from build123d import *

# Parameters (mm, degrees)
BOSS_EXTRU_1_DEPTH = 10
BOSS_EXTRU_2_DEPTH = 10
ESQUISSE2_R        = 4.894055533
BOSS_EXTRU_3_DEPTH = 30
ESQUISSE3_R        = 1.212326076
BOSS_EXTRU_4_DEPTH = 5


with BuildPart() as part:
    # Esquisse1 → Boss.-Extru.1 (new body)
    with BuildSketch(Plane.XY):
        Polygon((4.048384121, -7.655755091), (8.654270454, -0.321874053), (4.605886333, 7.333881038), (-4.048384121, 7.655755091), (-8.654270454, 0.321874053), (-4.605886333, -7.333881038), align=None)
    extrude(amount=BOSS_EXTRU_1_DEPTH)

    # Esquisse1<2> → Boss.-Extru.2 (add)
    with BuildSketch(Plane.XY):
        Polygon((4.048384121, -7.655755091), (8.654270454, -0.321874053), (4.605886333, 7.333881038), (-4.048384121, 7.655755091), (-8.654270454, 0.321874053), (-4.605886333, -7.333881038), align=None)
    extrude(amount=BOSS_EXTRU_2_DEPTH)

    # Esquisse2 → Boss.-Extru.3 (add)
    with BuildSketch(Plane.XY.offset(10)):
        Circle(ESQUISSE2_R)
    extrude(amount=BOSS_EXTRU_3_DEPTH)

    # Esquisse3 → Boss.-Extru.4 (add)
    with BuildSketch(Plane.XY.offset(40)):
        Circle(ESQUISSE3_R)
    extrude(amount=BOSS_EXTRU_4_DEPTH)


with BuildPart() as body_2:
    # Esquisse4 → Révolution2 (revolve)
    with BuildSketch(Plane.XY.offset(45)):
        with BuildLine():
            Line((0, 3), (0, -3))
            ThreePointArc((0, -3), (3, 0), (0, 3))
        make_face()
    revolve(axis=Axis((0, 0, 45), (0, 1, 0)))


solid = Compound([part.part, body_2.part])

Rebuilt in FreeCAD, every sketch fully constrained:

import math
import FreeCAD as App
import Part
import Sketcher
from FreeCAD import Vector
Q = App.Units.Quantity

doc = App.newDocument("Part")
body = doc.addObject("PartDesign::Body", "Body")

sketch1 = body.newObject("Sketcher::SketchObject", "Sketch")
sketch1.AttachmentSupport = (doc.getObject("XY_Plane"), [""])
sketch1.MapMode = "FlatFace"
sketch1.addGeometry(Part.LineSegment(Vector(4.048384, -7.655755, 0), Vector(8.65427, -0.321874, 0)), False)
sketch1.addGeometry(Part.LineSegment(Vector(8.65427, -0.321874, 0), Vector(4.605886, 7.333881, 0)), False)
sketch1.addGeometry(Part.LineSegment(Vector(4.605886, 7.333881, 0), Vector(-4.048384, 7.655755, 0)), False)
sketch1.addGeometry(Part.LineSegment(Vector(-4.048384, 7.655755, 0), Vector(-8.65427, 0.321874, 0)), False)
sketch1.addGeometry(Part.LineSegment(Vector(-8.65427, 0.321874, 0), Vector(-4.605886, -7.333881, 0)), False)
sketch1.addGeometry(Part.LineSegment(Vector(-4.605886, -7.333881, 0), Vector(4.048384, -7.655755, 0)), False)
sketch1.addConstraint(Sketcher.Constraint("Coincident", 0, 2, 1, 1))
sketch1.addConstraint(Sketcher.Constraint("Coincident", 1, 2, 2, 1))
sketch1.addConstraint(Sketcher.Constraint("Coincident", 2, 2, 3, 1))
sketch1.addConstraint(Sketcher.Constraint("Coincident", 3, 2, 4, 1))
sketch1.addConstraint(Sketcher.Constraint("Coincident", 4, 2, 5, 1))
sketch1.addConstraint(Sketcher.Constraint("Coincident", 5, 2, 0, 1))
sketch1.addConstraint(Sketcher.Constraint("Symmetric", 0, 2, 3, 2, -1, 1))
sketch1.addConstraint(Sketcher.Constraint("Symmetric", 1, 2, 4, 2, -1, 1))
sketch1.addConstraint(Sketcher.Constraint("Symmetric", 2, 2, 5, 2, -1, 1))
sketch1.addConstraint(Sketcher.Constraint("Equal", 0, 1))
sketch1.addConstraint(Sketcher.Constraint("Equal", 1, 2))
sketch1.addConstraint(Sketcher.Constraint("Angle", 0, Q("57.870008 deg")))
sketch1.addConstraint(Sketcher.Constraint("Angle", 1, Q("117.870008 deg")))
sketch1.addConstraint(Sketcher.Constraint("Angle", 2, Q("177.870008 deg")))
sketch1.addConstraint(Sketcher.Constraint("DistanceX", -1, 1, 0, 2, Q("8.65427 mm")))
pad1 = body.newObject("PartDesign::Pad", "Pad")
pad1.Profile = sketch1
pad1.Length = 10

sketch2 = body.newObject("Sketcher::SketchObject", "Sketch001")
sketch2.AttachmentSupport = (doc.getObject("XY_Plane"), [""])
sketch2.MapMode = "FlatFace"
sketch2.addGeometry(Part.LineSegment(Vector(4.048384, -7.655755, 0), Vector(8.65427, -0.321874, 0)), False)
sketch2.addGeometry(Part.LineSegment(Vector(8.65427, -0.321874, 0), Vector(4.605886, 7.333881, 0)), False)
sketch2.addGeometry(Part.LineSegment(Vector(4.605886, 7.333881, 0), Vector(-4.048384, 7.655755, 0)), False)
sketch2.addGeometry(Part.LineSegment(Vector(-4.048384, 7.655755, 0), Vector(-8.65427, 0.321874, 0)), False)
sketch2.addGeometry(Part.LineSegment(Vector(-8.65427, 0.321874, 0), Vector(-4.605886, -7.333881, 0)), False)
sketch2.addGeometry(Part.LineSegment(Vector(-4.605886, -7.333881, 0), Vector(4.048384, -7.655755, 0)), False)
sketch2.addConstraint(Sketcher.Constraint("Coincident", 0, 2, 1, 1))
sketch2.addConstraint(Sketcher.Constraint("Coincident", 1, 2, 2, 1))
sketch2.addConstraint(Sketcher.Constraint("Coincident", 2, 2, 3, 1))
sketch2.addConstraint(Sketcher.Constraint("Coincident", 3, 2, 4, 1))
sketch2.addConstraint(Sketcher.Constraint("Coincident", 4, 2, 5, 1))
sketch2.addConstraint(Sketcher.Constraint("Coincident", 5, 2, 0, 1))
sketch2.addConstraint(Sketcher.Constraint("Symmetric", 0, 2, 3, 2, -1, 1))
sketch2.addConstraint(Sketcher.Constraint("Symmetric", 1, 2, 4, 2, -1, 1))
sketch2.addConstraint(Sketcher.Constraint("Symmetric", 2, 2, 5, 2, -1, 1))
sketch2.addConstraint(Sketcher.Constraint("Equal", 0, 1))
sketch2.addConstraint(Sketcher.Constraint("Equal", 1, 2))
sketch2.addConstraint(Sketcher.Constraint("Angle", 0, Q("57.870008 deg")))
sketch2.addConstraint(Sketcher.Constraint("Angle", 1, Q("117.870008 deg")))
sketch2.addConstraint(Sketcher.Constraint("Angle", 2, Q("177.870008 deg")))
sketch2.addConstraint(Sketcher.Constraint("DistanceX", -1, 1, 0, 2, Q("8.65427 mm")))
pad2 = body.newObject("PartDesign::Pad", "Pad001")
pad2.Profile = sketch2
pad2.Length = 10

sketch3 = body.newObject("Sketcher::SketchObject", "Sketch002")
sketch3.AttachmentSupport = (doc.getObject("XY_Plane"), [""])
sketch3.MapMode = "FlatFace"
sketch3.AttachmentOffset = App.Placement(Vector(0, 0, 10), App.Rotation())
sketch3.addGeometry(Part.Circle(Vector(0, 0, 0), Vector(0, 0, 1), 4.894056), False)
sketch3.addConstraint(Sketcher.Constraint("Coincident", 0, 3, -1, 1))
sketch3.addConstraint(Sketcher.Constraint("Diameter", 0, Q("9.788111 mm")))
pad3 = body.newObject("PartDesign::Pad", "Pad002")
pad3.Profile = sketch3
pad3.Length = 30

sketch4 = body.newObject("Sketcher::SketchObject", "Sketch003")
sketch4.AttachmentSupport = (doc.getObject("XY_Plane"), [""])
sketch4.MapMode = "FlatFace"
sketch4.AttachmentOffset = App.Placement(Vector(0, 0, 40), App.Rotation())
sketch4.addGeometry(Part.Circle(Vector(0, 0, 0), Vector(0, 0, 1), 1.212326), False)
sketch4.addConstraint(Sketcher.Constraint("Coincident", 0, 3, -1, 1))
sketch4.addConstraint(Sketcher.Constraint("Diameter", 0, Q("2.424652 mm")))
pad4 = body.newObject("PartDesign::Pad", "Pad003")
pad4.Profile = sketch4
pad4.Length = 5
body2 = doc.addObject("PartDesign::Body", "Body001")

sketch5 = body2.newObject("Sketcher::SketchObject", "Sketch004")
sketch5.AttachmentSupport = (doc.getObject("XY_Plane001"), [""])
sketch5.MapMode = "FlatFace"
sketch5.AttachmentOffset = App.Placement(Vector(0, 0, 45), App.Rotation())
sketch5.addGeometry(Part.LineSegment(Vector(0, 3, 0), Vector(0, -3, 0)), False)
sketch5.addGeometry(Part.ArcOfCircle(Part.Circle(Vector(0, 0, 0), Vector(0, 0, 1), 3), math.radians(-90), math.radians(90)), False)
sketch5.addConstraint(Sketcher.Constraint("Coincident", 0, 1, 1, 2))
sketch5.addConstraint(Sketcher.Constraint("Coincident", 1, 1, 0, 2))
sketch5.addConstraint(Sketcher.Constraint("Vertical", 0))
sketch5.addConstraint(Sketcher.Constraint("Coincident", 1, 3, -1, 1))
sketch5.addConstraint(Sketcher.Constraint("PointOnObject", 0, 1, -2))
sketch5.addConstraint(Sketcher.Constraint("Radius", 1, Q("3 mm")))
revolution = body2.newObject("PartDesign::Revolution", "Revolution")
revolution.Profile = sketch5
revolution.ReferenceAxis = (sketch5, ["V_Axis"])
revolution.Angle = 360

doc.recompute()
